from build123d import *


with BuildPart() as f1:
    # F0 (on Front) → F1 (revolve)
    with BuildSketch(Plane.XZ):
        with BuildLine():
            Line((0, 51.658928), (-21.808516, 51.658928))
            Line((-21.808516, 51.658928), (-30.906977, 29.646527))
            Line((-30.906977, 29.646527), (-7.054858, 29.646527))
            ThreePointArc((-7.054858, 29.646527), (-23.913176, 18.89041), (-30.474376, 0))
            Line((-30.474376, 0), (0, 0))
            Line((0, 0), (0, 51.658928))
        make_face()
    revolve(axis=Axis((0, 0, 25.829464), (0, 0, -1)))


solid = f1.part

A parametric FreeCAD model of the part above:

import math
import FreeCAD as App
import Part
import Sketcher
from FreeCAD import Vector

doc = App.newDocument("Part")
body = doc.addObject("PartDesign::Body", "Body")

sketch1 = body.newObject("Sketcher::SketchObject", "Sketch")
sketch1.AttachmentSupport = (doc.getObject("XZ_Plane"), [""])
sketch1.MapMode = "FlatFace"
sketch1.addGeometry(Part.LineSegment(Vector(0, 52, 0), Vector(-22, 52, 0)), False)
sketch1.addGeometry(Part.LineSegment(Vector(-22, 52, 0), Vector(-31, 30, 0)), False)
sketch1.addGeometry(Part.LineSegment(Vector(-31, 30, 0), Vector(-7, 30, 0)), False)
sketch1.addGeometry(Part.ArcOfCircle(Part.Circle(Vector(0, 0, 0), Vector(0, 0, 1), 30), math.radians(103), math.radians(180)), False)
sketch1.addGeometry(Part.LineSegment(Vector(-30, 0, 0), Vector(0, 0, 0)), False)
sketch1.addGeometry(Part.LineSegment(Vector(0, 0, 0), Vector(0, 52, 0)), False)
sketch1.addConstraint(Sketcher.Constraint("Coincident", 0, 2, 1, 1))
sketch1.addConstraint(Sketcher.Constraint("Coincident", 1, 2, 2, 1))
sketch1.addConstraint(Sketcher.Constraint("Coincident", 2, 2, 3, 1))
sketch1.addConstraint(Sketcher.Constraint("Coincident", 3, 2, 4, 1))
sketch1.addConstraint(Sketcher.Constraint("Coincident", 4, 2, 5, 1))
sketch1.addConstraint(Sketcher.Constraint("Coincident", 5, 2, 0, 1))
sketch1.addConstraint(Sketcher.Constraint("Horizontal", 0))
sketch1.addConstraint(Sketcher.Constraint("Horizontal", 2))
sketch1.addConstraint(Sketcher.Constraint("Horizontal", 4))
sketch1.addConstraint(Sketcher.Constraint("Vertical", 5))
sketch1.addConstraint(Sketcher.Constraint("Coincident", 3, 3, -1, 1))
sketch1.addConstraint(Sketcher.Constraint("Coincident", 4, 2, -1, 1))
sketch1.addConstraint(Sketcher.Constraint("Radius", 3, 30.474377))
sketch1.addConstraint(Sketcher.Constraint("DistanceX", 2, 1, 2, 2, 23.852119))
sketch1.addConstraint(Sketcher.Constraint("DistanceY", 5, 1, 5, 2, 51.658928))
sketch1.addConstraint(Sketcher.Constraint("DistanceY", 1, 2, 0, 2, 22.012401))
sketch1.addConstraint(Sketcher.Constraint("DistanceX", 0, 2, 0, 1, 21.808516))
revolution = body.newObject("PartDesign::Revolution", "Revolution")
revolution.Profile = sketch1
revolution.ReferenceAxis = (sketch1, ["V_Axis"])
revolution.Angle = 360

doc.recompute()
